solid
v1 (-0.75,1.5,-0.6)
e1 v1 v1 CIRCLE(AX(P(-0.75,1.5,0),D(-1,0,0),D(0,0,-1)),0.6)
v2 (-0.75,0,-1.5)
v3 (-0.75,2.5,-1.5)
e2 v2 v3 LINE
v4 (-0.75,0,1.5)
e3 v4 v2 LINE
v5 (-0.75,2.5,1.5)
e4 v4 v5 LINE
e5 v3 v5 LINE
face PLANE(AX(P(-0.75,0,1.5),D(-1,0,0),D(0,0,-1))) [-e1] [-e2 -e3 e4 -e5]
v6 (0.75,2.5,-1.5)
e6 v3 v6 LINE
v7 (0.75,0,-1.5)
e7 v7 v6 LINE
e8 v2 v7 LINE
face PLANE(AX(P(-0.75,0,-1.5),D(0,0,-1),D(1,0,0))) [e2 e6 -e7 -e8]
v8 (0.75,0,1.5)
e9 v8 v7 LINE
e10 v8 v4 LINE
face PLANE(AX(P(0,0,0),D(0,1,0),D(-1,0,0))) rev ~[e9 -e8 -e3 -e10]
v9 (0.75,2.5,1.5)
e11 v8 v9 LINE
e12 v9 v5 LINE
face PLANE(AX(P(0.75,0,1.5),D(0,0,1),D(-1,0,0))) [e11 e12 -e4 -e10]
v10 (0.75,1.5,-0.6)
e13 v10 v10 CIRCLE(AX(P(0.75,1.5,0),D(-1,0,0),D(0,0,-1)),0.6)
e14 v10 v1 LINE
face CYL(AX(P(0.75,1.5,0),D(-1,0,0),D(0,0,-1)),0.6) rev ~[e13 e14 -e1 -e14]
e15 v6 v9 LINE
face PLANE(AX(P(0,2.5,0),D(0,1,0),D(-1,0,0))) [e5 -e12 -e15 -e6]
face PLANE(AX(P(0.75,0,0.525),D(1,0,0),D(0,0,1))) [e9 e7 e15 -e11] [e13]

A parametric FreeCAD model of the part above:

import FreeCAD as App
import Part
import Sketcher

V = App.Vector

doc = App.newDocument("Part")
params = doc.addObject("Spreadsheet::Sheet", "Params")
for row, (alias, value) in enumerate([
    ("sketch1_height", "3 mm"),
    ("sketch1_width", "1.5 mm"),
    ("pad1_length", "2.5 mm"),
    ("sketch2_diameter", "1.2 mm"),
    ("hole_diameter", "1.2 mm"),
], start=1):
    params.set(f"A{row}", alias)
    params.set(f"B{row}", "=" + value)
    params.setAlias(f"B{row}", alias)

body = doc.addObject("PartDesign::Body", "Body")

# Sketch on XZ plane
sketch1 = body.newObject("Sketcher::SketchObject", "Sketch")
sketch1.AttachmentSupport = (doc.getObject("XZ_Plane"), [""])
sketch1.MapMode = "FlatFace"
sketch1.addGeometry([
    Part.LineSegment(V(0.8, 1.5, 0), V(0.8, -1.5, 0)),
    Part.LineSegment(V(0.8, -1.5, 0), V(-0.8, -1.5, 0)),
    Part.LineSegment(V(-0.8, -1.5, 0), V(-0.8, 1.5, 0)),
    Part.LineSegment(V(-0.8, 1.5, 0), V(0.8, 1.5, 0)),
], False)
sketch1.addConstraint([
    Sketcher.Constraint("Coincident", 0, 2, 1, 1),
    Sketcher.Constraint("Coincident", 1, 2, 2, 1),
    Sketcher.Constraint("Coincident", 2, 2, 3, 1),
    Sketcher.Constraint("Coincident", 3, 2, 0, 1),
    Sketcher.Constraint("Vertical", 0),
    Sketcher.Constraint("Horizontal", 1),
    Sketcher.Constraint("Vertical", 2),
    Sketcher.Constraint("Horizontal", 3),
    Sketcher.Constraint("Symmetric", 0, 2, 2, 2, -1, 1),
    Sketcher.Constraint("DistanceY", 0, 2, 0, 1, 3.0),
    Sketcher.Constraint("DistanceX", 1, 2, 1, 1, 1.5),
])
sketch1.setExpression("Constraints[9]", "Params.sketch1_height")
sketch1.setExpression("Constraints[10]", "Params.sketch1_width")
pad1 = body.newObject("PartDesign::Pad", "Pad")
pad1.Profile = sketch1
pad1.setExpression("Length", "Params.pad1_length")
pad1.Reversed = True

# Sketch on YZ plane
sketch2 = body.newObject("Sketcher::SketchObject", "Sketch001")
sketch2.AttachmentSupport = (doc.getObject("YZ_Plane"), [""])
sketch2.MapMode = "FlatFace"
sketch2.AttachmentOffset = App.Placement(V(0, 0, 0.75), App.Rotation())
sketch2.addGeometry(Part.Circle(V(1.5, 0, 0), V(0, 0, 1), 0.6), False)
sketch2.addConstraint([
    Sketcher.Constraint("PointOnObject", 0, 3, -1),
    Sketcher.Constraint("Diameter", 0, 1.2),
    Sketcher.Constraint("DistanceX", -1, 1, 0, 3, 1.5),
])
sketch2.setExpression("Constraints[1]", "Params.sketch2_diameter")
doc.recompute()
hole = body.newObject("PartDesign::Hole", "Hole")
hole.Profile = sketch2
hole.ThreadType = "None"
hole.setExpression("Diameter", "Params.hole_diameter")
hole.DepthType = "ThroughAll"

doc.recompute()
